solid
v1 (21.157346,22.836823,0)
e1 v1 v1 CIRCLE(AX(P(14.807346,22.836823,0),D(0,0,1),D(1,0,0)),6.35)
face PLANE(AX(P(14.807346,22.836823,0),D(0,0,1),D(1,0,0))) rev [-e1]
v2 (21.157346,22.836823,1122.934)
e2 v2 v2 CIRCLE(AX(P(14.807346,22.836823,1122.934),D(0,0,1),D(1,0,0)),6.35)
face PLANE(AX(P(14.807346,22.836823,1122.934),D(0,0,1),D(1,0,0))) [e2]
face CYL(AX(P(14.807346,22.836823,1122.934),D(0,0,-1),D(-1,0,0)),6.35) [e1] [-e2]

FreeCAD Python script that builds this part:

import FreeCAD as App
import Part
import Sketcher
Q = App.Units.Quantity

doc = App.newDocument("Part")
body = doc.addObject("PartDesign::Body", "Body")

sketch1 = body.newObject("Sketcher::SketchObject", "Sketch")
sketch1.AttachmentSupport = (doc.getObject("XY_Plane"), [""])
sketch1.MapMode = "FlatFace"
sketch1.addGeometry(Part.Circle(App.Vector(14.807346, 22.836823, 0), App.Vector(0, 0, 1), 6.35), False)
sketch1.addConstraint(Sketcher.Constraint("Diameter", 0, Q("0.5 in")))
sketch1.addConstraint(Sketcher.Constraint("DistanceX", -1, 1, 0, 3, 14.807346))
sketch1.addConstraint(Sketcher.Constraint("DistanceY", -1, 1, 0, 3, 22.836823))
pad1 = body.newObject("PartDesign::Pad", "Pad")
pad1.Profile = sketch1
pad1.Length = Q("44.21 in")

doc.recompute()
